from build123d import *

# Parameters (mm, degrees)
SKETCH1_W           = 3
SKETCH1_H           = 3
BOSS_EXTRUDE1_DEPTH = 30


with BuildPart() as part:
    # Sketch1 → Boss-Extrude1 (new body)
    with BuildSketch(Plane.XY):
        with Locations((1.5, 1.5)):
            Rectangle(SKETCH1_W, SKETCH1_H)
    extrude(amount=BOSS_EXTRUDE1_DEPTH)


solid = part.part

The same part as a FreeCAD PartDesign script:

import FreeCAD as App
import Part
import Sketcher
from FreeCAD import Vector


def add_polygon(sketch, points):
    """Adds a closed chain of lines whose ends are joined by coincident constraints."""
    first, n = sketch.GeometryCount, len(points)
    for a, b in zip(points, points[1:] + points[:1]):
        sketch.addGeometry(Part.LineSegment(App.Vector(*a, 0), App.Vector(*b, 0)), False)
    for i in range(n):
        sketch.addConstraint(Sketcher.Constraint("Coincident", first + i, 2, first + (i + 1) % n, 1))

doc = App.newDocument("Part")
params = doc.addObject("Spreadsheet::Sheet", "Params")
for row, (alias, value) in enumerate([
    ("sketch1_width", "3 mm"),
    ("pad1_length", "30 mm"),
], start=1):
    params.set(f"A{row}", alias)
    params.set(f"B{row}", "=" + value)
    params.setAlias(f"B{row}", alias)

body = doc.addObject("PartDesign::Body", "Body")

# Sketch on XY plane
sketch1 = body.newObject("Sketcher::SketchObject", "Sketch")
sketch1.AttachmentSupport = (doc.getObject("XY_Plane"), [""])
sketch1.MapMode = "FlatFace"
add_polygon(sketch1, [(0, 3), (0, 0), (3, 0), (3, 3)])  # lines 0-3
sketch1.addConstraint(Sketcher.Constraint("Vertical", 0))
sketch1.addConstraint(Sketcher.Constraint("Horizontal", 1))
sketch1.addConstraint(Sketcher.Constraint("Vertical", 2))
sketch1.addConstraint(Sketcher.Constraint("Horizontal", 3))
sketch1.addConstraint(Sketcher.Constraint("Coincident", 0, 2, -1, 1))
sketch1.addConstraint(Sketcher.Constraint("Equal", 3, 0))
sketch1.addConstraint(Sketcher.Constraint("DistanceX", 1, 1, 1, 2, 3.0))
sketch1.setExpression("Constraints[10]", "Params.sketch1_width")
pad1 = body.newObject("PartDesign::Pad", "Pad")
pad1.Profile = sketch1
pad1.setExpression("Length", "Params.pad1_length")

doc.recompute()
